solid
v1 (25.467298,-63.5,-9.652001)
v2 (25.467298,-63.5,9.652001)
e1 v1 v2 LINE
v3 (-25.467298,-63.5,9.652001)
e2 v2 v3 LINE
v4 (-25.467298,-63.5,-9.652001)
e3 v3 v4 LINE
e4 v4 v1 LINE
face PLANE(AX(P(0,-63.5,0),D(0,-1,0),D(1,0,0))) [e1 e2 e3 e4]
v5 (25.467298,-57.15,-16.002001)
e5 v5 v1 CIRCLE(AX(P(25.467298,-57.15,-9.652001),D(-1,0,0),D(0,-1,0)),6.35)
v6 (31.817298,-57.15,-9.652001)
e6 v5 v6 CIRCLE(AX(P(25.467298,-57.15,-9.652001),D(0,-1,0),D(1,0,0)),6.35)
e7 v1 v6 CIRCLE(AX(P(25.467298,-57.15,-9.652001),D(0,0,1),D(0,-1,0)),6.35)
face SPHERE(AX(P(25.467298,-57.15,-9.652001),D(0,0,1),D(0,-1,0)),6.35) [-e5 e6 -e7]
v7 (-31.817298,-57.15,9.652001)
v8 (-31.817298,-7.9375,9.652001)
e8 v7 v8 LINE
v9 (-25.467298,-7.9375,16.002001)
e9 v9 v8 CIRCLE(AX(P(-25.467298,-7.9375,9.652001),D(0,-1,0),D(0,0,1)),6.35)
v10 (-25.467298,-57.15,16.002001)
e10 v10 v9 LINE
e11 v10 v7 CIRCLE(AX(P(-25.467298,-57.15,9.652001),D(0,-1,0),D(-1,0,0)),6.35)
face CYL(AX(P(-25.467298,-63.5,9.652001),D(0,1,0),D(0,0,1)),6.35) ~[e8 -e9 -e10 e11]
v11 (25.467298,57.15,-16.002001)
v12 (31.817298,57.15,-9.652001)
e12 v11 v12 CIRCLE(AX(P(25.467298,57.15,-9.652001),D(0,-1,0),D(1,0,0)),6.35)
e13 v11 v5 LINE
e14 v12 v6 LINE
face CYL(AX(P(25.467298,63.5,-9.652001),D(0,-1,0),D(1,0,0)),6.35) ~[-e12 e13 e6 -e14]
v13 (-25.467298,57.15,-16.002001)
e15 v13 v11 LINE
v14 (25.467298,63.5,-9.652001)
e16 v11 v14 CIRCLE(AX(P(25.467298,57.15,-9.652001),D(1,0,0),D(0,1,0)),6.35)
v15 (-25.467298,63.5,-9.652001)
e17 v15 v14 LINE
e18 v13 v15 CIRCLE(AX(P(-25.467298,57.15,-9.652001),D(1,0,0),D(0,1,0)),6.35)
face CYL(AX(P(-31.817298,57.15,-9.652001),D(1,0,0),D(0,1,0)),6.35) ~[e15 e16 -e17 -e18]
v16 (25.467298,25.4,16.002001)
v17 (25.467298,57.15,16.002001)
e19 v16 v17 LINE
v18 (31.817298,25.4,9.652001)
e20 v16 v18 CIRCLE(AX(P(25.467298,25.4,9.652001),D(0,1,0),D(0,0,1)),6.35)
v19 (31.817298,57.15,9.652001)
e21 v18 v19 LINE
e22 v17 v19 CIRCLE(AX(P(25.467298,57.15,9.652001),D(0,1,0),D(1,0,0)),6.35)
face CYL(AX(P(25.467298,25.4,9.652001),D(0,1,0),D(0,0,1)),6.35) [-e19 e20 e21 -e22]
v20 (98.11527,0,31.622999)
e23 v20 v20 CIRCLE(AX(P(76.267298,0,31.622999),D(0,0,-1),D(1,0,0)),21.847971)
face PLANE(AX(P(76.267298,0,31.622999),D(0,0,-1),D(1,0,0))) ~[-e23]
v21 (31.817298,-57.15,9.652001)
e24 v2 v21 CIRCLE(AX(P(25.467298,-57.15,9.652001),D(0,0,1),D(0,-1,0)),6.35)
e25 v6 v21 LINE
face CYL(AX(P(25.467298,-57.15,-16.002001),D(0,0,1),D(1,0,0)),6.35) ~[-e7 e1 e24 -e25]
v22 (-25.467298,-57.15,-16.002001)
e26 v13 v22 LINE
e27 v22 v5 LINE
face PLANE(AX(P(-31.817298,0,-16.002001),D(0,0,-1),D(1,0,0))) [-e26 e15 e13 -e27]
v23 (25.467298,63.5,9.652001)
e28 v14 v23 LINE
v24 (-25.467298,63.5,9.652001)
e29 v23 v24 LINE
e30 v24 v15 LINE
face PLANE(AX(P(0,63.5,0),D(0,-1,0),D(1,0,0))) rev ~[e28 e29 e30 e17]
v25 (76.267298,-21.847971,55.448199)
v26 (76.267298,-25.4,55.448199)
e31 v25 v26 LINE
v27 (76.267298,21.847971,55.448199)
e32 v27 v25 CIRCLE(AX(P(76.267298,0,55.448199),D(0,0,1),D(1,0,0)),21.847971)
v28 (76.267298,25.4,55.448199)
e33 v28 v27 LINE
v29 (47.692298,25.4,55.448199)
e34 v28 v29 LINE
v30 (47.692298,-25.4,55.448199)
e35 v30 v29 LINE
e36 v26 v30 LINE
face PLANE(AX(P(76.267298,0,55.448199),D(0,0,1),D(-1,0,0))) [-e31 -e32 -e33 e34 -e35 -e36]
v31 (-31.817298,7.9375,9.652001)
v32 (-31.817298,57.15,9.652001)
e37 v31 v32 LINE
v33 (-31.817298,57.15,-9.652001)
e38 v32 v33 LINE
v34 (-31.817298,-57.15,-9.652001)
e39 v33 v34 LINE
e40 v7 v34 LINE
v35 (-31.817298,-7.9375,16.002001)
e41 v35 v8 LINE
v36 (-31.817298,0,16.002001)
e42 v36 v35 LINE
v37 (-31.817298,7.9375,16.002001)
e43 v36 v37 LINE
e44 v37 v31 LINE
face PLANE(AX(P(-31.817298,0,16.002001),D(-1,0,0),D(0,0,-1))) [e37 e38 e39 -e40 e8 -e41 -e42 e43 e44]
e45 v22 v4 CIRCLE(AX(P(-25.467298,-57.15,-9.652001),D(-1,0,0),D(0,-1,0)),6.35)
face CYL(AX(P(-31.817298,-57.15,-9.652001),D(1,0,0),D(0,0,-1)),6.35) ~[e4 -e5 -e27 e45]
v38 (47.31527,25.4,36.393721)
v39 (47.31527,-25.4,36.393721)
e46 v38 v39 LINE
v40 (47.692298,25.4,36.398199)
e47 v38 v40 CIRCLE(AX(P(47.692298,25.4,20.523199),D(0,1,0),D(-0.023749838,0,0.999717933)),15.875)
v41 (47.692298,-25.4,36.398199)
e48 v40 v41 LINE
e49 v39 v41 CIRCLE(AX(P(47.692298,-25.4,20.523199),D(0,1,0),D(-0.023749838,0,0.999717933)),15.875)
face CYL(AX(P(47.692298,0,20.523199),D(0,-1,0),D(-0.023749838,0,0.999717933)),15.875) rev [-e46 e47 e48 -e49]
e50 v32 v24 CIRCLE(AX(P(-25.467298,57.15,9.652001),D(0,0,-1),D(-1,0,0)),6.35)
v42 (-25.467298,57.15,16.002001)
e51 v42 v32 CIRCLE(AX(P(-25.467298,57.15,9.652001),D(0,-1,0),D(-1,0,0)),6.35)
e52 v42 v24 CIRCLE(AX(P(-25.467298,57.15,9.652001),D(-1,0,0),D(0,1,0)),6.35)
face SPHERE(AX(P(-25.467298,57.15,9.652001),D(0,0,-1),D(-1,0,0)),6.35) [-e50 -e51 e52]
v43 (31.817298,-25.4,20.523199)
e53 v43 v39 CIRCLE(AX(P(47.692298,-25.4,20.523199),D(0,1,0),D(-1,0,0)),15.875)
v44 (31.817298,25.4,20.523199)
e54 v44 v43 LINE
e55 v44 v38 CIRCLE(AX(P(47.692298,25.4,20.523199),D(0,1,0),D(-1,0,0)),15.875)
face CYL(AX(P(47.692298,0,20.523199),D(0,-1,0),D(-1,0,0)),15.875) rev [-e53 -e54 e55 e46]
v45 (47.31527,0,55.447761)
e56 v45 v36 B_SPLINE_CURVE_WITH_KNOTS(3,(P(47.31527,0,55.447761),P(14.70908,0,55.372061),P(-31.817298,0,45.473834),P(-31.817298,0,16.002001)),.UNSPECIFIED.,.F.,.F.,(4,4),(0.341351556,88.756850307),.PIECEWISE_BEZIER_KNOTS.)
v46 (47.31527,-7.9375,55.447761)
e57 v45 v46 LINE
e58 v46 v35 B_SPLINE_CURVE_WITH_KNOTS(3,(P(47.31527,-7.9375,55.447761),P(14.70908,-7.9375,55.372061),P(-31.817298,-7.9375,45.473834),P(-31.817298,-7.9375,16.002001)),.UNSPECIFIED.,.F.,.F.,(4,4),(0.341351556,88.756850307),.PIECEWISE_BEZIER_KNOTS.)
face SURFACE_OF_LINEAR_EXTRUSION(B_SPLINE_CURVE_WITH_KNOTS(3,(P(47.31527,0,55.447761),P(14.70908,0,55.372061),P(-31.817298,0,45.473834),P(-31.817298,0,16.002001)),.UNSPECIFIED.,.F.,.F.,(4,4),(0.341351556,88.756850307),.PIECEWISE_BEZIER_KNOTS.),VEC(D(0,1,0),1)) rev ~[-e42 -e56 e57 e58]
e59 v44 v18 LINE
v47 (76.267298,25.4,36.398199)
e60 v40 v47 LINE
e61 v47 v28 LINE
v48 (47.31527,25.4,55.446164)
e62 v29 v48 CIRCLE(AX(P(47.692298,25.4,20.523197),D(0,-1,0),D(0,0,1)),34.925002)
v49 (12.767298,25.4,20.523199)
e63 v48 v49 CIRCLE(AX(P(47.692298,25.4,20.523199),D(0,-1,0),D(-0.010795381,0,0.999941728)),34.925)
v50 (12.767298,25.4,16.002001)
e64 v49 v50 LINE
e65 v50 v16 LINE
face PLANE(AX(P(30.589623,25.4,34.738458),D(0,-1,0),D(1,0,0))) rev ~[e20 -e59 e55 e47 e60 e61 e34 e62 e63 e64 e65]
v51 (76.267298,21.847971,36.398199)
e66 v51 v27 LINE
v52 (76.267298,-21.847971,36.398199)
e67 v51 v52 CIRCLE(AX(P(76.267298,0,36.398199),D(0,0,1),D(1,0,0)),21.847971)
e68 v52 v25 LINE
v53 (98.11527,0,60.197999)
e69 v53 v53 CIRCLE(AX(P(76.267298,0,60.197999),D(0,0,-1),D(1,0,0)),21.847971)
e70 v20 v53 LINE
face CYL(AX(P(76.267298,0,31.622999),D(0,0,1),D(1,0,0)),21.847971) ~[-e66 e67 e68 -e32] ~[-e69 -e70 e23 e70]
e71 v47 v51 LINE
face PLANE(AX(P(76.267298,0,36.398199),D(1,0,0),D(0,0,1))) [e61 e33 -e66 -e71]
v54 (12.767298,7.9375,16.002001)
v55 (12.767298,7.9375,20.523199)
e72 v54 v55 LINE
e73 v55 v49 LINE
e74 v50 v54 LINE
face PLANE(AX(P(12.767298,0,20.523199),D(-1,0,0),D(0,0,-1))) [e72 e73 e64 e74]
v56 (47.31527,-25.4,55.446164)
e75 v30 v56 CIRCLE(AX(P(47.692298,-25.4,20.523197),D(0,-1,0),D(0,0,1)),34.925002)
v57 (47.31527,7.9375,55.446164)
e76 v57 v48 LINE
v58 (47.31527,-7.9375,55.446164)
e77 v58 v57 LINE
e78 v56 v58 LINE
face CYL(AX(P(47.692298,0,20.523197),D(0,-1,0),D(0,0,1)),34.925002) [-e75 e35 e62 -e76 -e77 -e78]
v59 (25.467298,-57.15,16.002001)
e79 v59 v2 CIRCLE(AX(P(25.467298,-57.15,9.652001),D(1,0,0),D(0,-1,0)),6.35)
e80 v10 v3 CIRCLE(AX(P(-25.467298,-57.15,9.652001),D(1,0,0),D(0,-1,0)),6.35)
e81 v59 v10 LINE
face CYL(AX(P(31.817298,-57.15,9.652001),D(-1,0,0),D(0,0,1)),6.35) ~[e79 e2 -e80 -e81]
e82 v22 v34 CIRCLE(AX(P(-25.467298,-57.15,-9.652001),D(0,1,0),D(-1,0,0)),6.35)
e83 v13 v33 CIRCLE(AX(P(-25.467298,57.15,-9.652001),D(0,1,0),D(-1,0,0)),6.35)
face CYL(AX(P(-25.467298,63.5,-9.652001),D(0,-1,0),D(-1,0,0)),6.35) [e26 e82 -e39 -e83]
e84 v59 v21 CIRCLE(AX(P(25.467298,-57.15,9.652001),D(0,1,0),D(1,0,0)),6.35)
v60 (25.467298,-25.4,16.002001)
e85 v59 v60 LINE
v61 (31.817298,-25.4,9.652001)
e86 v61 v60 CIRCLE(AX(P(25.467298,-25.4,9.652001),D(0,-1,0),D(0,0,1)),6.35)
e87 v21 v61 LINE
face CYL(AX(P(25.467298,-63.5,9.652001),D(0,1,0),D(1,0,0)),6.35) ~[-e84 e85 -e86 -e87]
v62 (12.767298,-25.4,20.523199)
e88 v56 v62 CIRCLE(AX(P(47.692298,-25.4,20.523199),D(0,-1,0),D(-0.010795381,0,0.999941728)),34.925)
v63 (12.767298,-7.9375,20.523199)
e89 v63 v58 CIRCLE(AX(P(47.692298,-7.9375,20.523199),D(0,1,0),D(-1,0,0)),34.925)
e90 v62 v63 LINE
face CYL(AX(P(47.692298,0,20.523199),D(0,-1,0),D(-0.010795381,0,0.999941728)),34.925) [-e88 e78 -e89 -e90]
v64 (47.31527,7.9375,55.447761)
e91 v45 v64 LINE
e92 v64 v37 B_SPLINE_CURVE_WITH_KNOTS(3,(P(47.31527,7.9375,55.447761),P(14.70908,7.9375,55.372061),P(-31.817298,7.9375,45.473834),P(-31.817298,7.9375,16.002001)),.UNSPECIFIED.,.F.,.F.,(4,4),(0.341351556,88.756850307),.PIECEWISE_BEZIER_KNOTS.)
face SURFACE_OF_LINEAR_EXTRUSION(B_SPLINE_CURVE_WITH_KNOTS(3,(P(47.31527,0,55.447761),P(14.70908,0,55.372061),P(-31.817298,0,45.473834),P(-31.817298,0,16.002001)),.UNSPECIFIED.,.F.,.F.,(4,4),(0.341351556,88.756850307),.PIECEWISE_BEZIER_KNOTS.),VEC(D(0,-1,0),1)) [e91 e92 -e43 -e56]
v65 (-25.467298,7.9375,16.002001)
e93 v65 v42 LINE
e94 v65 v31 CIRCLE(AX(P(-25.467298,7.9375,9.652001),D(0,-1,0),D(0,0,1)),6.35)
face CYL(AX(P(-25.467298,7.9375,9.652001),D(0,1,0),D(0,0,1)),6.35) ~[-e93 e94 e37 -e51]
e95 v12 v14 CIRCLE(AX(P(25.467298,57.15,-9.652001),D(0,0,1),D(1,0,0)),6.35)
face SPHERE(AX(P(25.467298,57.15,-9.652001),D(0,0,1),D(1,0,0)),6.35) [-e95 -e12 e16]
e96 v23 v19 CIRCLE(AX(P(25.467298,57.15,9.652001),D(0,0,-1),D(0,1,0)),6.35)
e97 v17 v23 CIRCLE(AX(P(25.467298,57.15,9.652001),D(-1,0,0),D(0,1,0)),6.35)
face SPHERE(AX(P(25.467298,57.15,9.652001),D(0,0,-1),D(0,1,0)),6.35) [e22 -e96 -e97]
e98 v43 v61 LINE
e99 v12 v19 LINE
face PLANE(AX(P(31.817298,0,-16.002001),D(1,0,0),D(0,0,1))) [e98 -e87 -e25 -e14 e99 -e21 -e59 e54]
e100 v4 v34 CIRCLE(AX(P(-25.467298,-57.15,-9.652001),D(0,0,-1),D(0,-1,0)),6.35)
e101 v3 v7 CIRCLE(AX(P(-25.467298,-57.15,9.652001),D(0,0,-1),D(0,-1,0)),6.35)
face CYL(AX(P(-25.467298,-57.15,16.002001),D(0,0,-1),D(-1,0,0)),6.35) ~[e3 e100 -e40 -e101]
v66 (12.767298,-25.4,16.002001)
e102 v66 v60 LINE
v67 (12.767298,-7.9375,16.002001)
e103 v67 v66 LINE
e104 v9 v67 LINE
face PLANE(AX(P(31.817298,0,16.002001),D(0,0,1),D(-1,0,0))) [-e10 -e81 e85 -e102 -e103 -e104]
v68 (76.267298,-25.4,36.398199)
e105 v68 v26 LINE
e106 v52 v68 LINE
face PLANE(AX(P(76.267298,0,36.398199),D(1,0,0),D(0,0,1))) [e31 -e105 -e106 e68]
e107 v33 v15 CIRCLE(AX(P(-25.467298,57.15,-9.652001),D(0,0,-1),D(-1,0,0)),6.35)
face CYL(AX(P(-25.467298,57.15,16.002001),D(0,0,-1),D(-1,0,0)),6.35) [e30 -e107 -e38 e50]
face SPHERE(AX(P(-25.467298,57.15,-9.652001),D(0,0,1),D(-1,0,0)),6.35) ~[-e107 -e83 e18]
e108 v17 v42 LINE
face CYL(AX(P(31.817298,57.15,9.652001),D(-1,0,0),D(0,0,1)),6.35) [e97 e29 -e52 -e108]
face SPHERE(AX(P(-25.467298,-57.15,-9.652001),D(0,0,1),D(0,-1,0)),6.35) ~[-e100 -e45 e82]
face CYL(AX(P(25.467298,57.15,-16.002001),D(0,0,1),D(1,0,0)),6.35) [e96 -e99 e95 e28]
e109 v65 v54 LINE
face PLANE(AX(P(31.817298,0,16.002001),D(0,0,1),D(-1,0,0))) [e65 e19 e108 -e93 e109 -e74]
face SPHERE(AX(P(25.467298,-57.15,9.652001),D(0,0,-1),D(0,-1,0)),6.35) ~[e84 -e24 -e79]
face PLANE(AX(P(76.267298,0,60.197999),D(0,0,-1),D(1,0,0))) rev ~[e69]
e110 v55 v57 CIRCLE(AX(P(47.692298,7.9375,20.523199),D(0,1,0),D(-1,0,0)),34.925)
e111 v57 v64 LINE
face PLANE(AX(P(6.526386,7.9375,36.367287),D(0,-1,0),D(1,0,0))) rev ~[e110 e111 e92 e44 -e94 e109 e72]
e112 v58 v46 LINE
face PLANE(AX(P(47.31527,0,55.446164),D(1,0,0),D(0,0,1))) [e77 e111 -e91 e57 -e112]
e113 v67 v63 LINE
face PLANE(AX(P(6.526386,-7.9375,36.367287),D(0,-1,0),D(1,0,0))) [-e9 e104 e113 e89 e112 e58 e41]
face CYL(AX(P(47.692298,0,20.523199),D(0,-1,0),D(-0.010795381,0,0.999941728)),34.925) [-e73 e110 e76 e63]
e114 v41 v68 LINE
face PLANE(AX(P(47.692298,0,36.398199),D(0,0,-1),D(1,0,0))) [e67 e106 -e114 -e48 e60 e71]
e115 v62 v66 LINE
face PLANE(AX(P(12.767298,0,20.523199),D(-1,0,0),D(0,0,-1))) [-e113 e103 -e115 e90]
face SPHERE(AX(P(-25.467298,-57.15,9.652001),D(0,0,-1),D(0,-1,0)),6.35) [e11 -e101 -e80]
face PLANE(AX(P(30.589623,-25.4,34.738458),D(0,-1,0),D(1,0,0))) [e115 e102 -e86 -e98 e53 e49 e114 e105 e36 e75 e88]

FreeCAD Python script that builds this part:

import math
import FreeCAD as App
import Part
import Sketcher
from FreeCAD import Vector
Q = App.Units.Quantity


def edges_at(feature, points):
    """Names of the edges that pass closest to the given points."""
    edges = feature.Shape.Edges
    near = lambda p: min(range(len(edges)), key=lambda i: edges[i].distToShape(Part.Vertex(*p))[0])
    return sorted({f"Edge{near(p) + 1}" for p in points})


def add_polygon(sketch, points):
    """Adds a closed chain of lines whose ends are joined by coincident constraints."""
    first, n = sketch.GeometryCount, len(points)
    for a, b in zip(points, points[1:] + points[:1]):
        sketch.addGeometry(Part.LineSegment(App.Vector(*a, 0), App.Vector(*b, 0)), False)
    for i in range(n):
        sketch.addConstraint(Sketcher.Constraint("Coincident", first + i, 2, first + (i + 1) % n, 1))

doc = App.newDocument("Part")
body = doc.addObject("PartDesign::Body", "Body")

sketch1 = body.newObject("Sketcher::SketchObject", "Sketch")
sketch1.AttachmentSupport = (doc.getObject("XZ_Plane"), [""])
sketch1.MapMode = "FlatFace"
add_polygon(sketch1, [(-32, 16), (-32, -16), (32, -16), (32, 16)])
sketch1.addConstraint(Sketcher.Constraint("Vertical", 0))
sketch1.addConstraint(Sketcher.Constraint("Horizontal", 1))
sketch1.addConstraint(Sketcher.Constraint("Vertical", 2))
sketch1.addConstraint(Sketcher.Constraint("Horizontal", 3))
sketch1.addConstraint(Sketcher.Constraint("Symmetric", 0, 2, 2, 2, -1, 1))
sketch1.addConstraint(Sketcher.Constraint("DistanceY", 0, 2, 0, 1, Q("1.2600001 in")))
sketch1.addConstraint(Sketcher.Constraint("DistanceX", 0, 2, -1, 1, Q("31.817298 mm")))
pad1 = body.newObject("PartDesign::Pad", "Pad")
pad1.Profile = sketch1
pad1.Length = Q("5 in")
pad1.Midplane = True

sketch2 = body.newObject("Sketcher::SketchObject", "Sketch001")
sketch2.AttachmentSupport = (doc.getObject("XZ_Plane"), [""])
sketch2.MapMode = "FlatFace"
sketch2.addGeometry(Part.LineSegment(Vector(12.77, 20.52, 0), Vector(12.77, 16, 0)), False)
sketch2.addGeometry(Part.LineSegment(Vector(12.77, 16, 0), Vector(31.82, 16, 0)), False)
sketch2.addGeometry(Part.LineSegment(Vector(31.82, 16, 0), Vector(31.82, 20.52, 0)), False)
sketch2.addGeometry(Part.ArcOfCircle(Part.Circle(Vector(47.69, 20.52, 0), Vector(0, 0, 1), 15.88), math.radians(91), math.radians(180)), False)
sketch2.addGeometry(Part.ArcOfCircle(Part.Circle(Vector(47.69, 20.52, 0), Vector(0, 0, 1), 15.87), math.radians(90), math.radians(91.36)), False)
sketch2.addGeometry(Part.LineSegment(Vector(47.69, 36.4, 0), Vector(76.27, 36.4, 0)), False)
sketch2.addGeometry(Part.LineSegment(Vector(76.27, 36.4, 0), Vector(76.27, 55.45, 0)), False)
sketch2.addGeometry(Part.LineSegment(Vector(76.27, 55.45, 0), Vector(47.69, 55.45, 0)), False)
sketch2.addGeometry(Part.ArcOfCircle(Part.Circle(Vector(47.69, 20.52, 0), Vector(0, 0, 1), 34.93), math.radians(90), math.radians(90.62)), False)
sketch2.addGeometry(Part.ArcOfCircle(Part.Circle(Vector(47.69, 20.52, 0), Vector(0, 0, 1), 34.92), math.radians(91), math.radians(180)), False)
sketch2.addConstraint(Sketcher.Constraint("Coincident", 0, 2, 1, 1))
sketch2.addConstraint(Sketcher.Constraint("Coincident", 1, 2, 2, 1))
sketch2.addConstraint(Sketcher.Constraint("Tangent", 2, 2, 3, 2))
sketch2.addConstraint(Sketcher.Constraint("Tangent", 3, 1, 4, 2))
sketch2.addConstraint(Sketcher.Constraint("Tangent", 4, 1, 5, 1))
sketch2.addConstraint(Sketcher.Constraint("Coincident", 5, 2, 6, 1))
sketch2.addConstraint(Sketcher.Constraint("Coincident", 6, 2, 7, 1))
sketch2.addConstraint(Sketcher.Constraint("Tangent", 7, 2, 8, 1))
sketch2.addConstraint(Sketcher.Constraint("Tangent", 8, 2, 9, 1))
sketch2.addConstraint(Sketcher.Constraint("Tangent", 9, 2, 0, 1))
sketch2.addConstraint(Sketcher.Constraint("Vertical", 0))
sketch2.addConstraint(Sketcher.Constraint("Horizontal", 1))
sketch2.addConstraint(Sketcher.Constraint("Vertical", 2))
sketch2.addConstraint(Sketcher.Constraint("Horizontal", 5))
sketch2.addConstraint(Sketcher.Constraint("Vertical", 6))
sketch2.addConstraint(Sketcher.Constraint("Horizontal", 7))
sketch2.addConstraint(Sketcher.Constraint("Coincident", 8, 3, 3, 3))
sketch2.addConstraint(Sketcher.Constraint("Equal", 3, 4))
sketch2.addConstraint(Sketcher.Constraint("Horizontal", 9, 3, 2, 2))
sketch2.addConstraint(Sketcher.Constraint("Vertical", 3, 1, 8, 2))
sketch2.addConstraint(Sketcher.Constraint("Radius", 3, Q("0.625 in")))
sketch2.addConstraint(Sketcher.Constraint("Radius", 8, Q("1.3750001 in")))
sketch2.addConstraint(Sketcher.Constraint("DistanceX", 5, 1, 5, 2, Q("1.125 in")))
sketch2.addConstraint(Sketcher.Constraint("DistanceY", 0, 2, 0, 1, Q("0.1779999 in")))
sketch2.addConstraint(Sketcher.Constraint("DistanceY", -1, 1, 0, 2, Q("0.63 in")))
sketch2.addConstraint(Sketcher.Constraint("DistanceX", -1, 1, 3, 3, Q("47.692298 mm")))
sketch2.addConstraint(Sketcher.Constraint("DistanceX", -1, 1, 3, 1, Q("47.31527 mm")))
pad2 = body.newObject("PartDesign::Pad", "Pad001")
pad2.Profile = sketch2
pad2.Length = Q("2 in")
pad2.Midplane = True

sketch3 = body.newObject("Sketcher::SketchObject", "Sketch002")
sketch3.AttachmentSupport = (doc.getObject("XZ_Plane"), [""])
sketch3.MapMode = "FlatFace"
sketch3.addGeometry(Part.BSplineCurve([Vector(47.31527, 55.447761, 0), Vector(14.70908, 55.372061, 0), Vector(-31.817298, 45.473834, 0), Vector(-31.817298, 16.002001, 0)], [4, 4], [0.341351556, 88.756850307], False, 3, [1, 1, 1, 1], False), False)
sketch3.addGeometry(Part.LineSegment(Vector(-31.817298, 16.002001, 0), Vector(12.767298, 16.002001, 0)), False)
sketch3.addGeometry(Part.LineSegment(Vector(12.767298, 16.002001, 0), Vector(12.767298, 20.523199, 0)), False)
sketch3.addGeometry(Part.ArcOfCircle(Part.Circle(Vector(47.692298, 20.523199, 0), Vector(0, 0, 1), 34.925), math.radians(90.618542), math.radians(180)), False)
sketch3.addGeometry(Part.LineSegment(Vector(47.31527, 55.446164, 0), Vector(47.31527, 55.447761, 0)), False)
sketch3.addConstraint(Sketcher.Constraint("Block", 0))
sketch3.addConstraint(Sketcher.Constraint("Coincident", 0, 2, 1, 1))
sketch3.addConstraint(Sketcher.Constraint("Coincident", 1, 2, 2, 1))
sketch3.addConstraint(Sketcher.Constraint("Tangent", 2, 2, 3, 2))
sketch3.addConstraint(Sketcher.Constraint("Coincident", 3, 1, 4, 1))
sketch3.addConstraint(Sketcher.Constraint("Coincident", 4, 2, 0, 1))
sketch3.addConstraint(Sketcher.Constraint("Horizontal", 1))
sketch3.addConstraint(Sketcher.Constraint("Vertical", 2))
sketch3.addConstraint(Sketcher.Constraint("Vertical", 4))
sketch3.addConstraint(Sketcher.Constraint("Radius", 3, Q("1.375 in")))
sketch3.addConstraint(Sketcher.Constraint("DistanceY", 2, 1, 2, 2, Q("0.1779999 in")))
sketch3.addConstraint(Sketcher.Constraint("DistanceX", -1, 1, 3, 3, Q("47.692298 mm")))
pad3 = body.newObject("PartDesign::Pad", "Pad002")
pad3.Profile = sketch3
pad3.Length = Q("0.625 in")
pad3.Midplane = True

sketch4 = body.newObject("Sketcher::SketchObject", "Sketch003")
sketch4.AttachmentSupport = (doc.getObject("XZ_Plane"), [""])
sketch4.MapMode = "FlatFace"
add_polygon(sketch4, [(98, 60), (76, 60), (76, 32), (98, 32)])
sketch4.addGeometry(Part.LineSegment(Vector(76, 60, 0), Vector(76, 32, 0)), True)
sketch4.addConstraint(Sketcher.Constraint("Horizontal", 0))
sketch4.addConstraint(Sketcher.Constraint("Vertical", 1))
sketch4.addConstraint(Sketcher.Constraint("Horizontal", 2))
sketch4.addConstraint(Sketcher.Constraint("Vertical", 3))
sketch4.addConstraint(Sketcher.Constraint("Vertical", 4))
sketch4.addConstraint(Sketcher.Constraint("Coincident", 4, 1, 0, 2))
sketch4.addConstraint(Sketcher.Constraint("Horizontal", 2, 2, 4, 2))
sketch4.addConstraint(Sketcher.Constraint("DistanceY", 1, 2, 1, 1, Q("1.125 in")))
sketch4.addConstraint(Sketcher.Constraint("DistanceY", -1, 1, 0, 2, Q("2.37 in")))
sketch4.addConstraint(Sketcher.Constraint("DistanceX", 0, 2, 0, 1, Q("21.847971 mm")))
sketch4.addConstraint(Sketcher.Constraint("DistanceX", -1, 1, 0, 2, Q("76.267298 mm")))
revolution = body.newObject("PartDesign::Revolution", "Revolution")
revolution.Profile = sketch4
revolution.ReferenceAxis = (sketch4, ["Axis0"])
revolution.Angle = 360
doc.recompute()

fillet = body.newObject("PartDesign::Fillet", "Fillet")
fillet.Base = (revolution, edges_at(revolution, [
    (31.817, -63.5, 0),
    (-31.817, -63.5, 0),
    (-31.817, 63.5, 0),
    (31.817, 63.5, 0),
    (0, -63.5, 16.002),
    (0, -63.5, -16.002),
    (31.817, -44.45, 16.002),
    (31.817, 0, -16.002),
    (-31.817, 35.719, 16.002),
    (-31.817, -35.719, 16.002),
    (-31.817, 0, -16.002),
    (0, 63.5, 16.002),
    (0, 63.5, -16.002),
    (31.817, 44.45, 16.002),
]))
fillet.Radius = Q("0.25 in")

doc.recompute()
